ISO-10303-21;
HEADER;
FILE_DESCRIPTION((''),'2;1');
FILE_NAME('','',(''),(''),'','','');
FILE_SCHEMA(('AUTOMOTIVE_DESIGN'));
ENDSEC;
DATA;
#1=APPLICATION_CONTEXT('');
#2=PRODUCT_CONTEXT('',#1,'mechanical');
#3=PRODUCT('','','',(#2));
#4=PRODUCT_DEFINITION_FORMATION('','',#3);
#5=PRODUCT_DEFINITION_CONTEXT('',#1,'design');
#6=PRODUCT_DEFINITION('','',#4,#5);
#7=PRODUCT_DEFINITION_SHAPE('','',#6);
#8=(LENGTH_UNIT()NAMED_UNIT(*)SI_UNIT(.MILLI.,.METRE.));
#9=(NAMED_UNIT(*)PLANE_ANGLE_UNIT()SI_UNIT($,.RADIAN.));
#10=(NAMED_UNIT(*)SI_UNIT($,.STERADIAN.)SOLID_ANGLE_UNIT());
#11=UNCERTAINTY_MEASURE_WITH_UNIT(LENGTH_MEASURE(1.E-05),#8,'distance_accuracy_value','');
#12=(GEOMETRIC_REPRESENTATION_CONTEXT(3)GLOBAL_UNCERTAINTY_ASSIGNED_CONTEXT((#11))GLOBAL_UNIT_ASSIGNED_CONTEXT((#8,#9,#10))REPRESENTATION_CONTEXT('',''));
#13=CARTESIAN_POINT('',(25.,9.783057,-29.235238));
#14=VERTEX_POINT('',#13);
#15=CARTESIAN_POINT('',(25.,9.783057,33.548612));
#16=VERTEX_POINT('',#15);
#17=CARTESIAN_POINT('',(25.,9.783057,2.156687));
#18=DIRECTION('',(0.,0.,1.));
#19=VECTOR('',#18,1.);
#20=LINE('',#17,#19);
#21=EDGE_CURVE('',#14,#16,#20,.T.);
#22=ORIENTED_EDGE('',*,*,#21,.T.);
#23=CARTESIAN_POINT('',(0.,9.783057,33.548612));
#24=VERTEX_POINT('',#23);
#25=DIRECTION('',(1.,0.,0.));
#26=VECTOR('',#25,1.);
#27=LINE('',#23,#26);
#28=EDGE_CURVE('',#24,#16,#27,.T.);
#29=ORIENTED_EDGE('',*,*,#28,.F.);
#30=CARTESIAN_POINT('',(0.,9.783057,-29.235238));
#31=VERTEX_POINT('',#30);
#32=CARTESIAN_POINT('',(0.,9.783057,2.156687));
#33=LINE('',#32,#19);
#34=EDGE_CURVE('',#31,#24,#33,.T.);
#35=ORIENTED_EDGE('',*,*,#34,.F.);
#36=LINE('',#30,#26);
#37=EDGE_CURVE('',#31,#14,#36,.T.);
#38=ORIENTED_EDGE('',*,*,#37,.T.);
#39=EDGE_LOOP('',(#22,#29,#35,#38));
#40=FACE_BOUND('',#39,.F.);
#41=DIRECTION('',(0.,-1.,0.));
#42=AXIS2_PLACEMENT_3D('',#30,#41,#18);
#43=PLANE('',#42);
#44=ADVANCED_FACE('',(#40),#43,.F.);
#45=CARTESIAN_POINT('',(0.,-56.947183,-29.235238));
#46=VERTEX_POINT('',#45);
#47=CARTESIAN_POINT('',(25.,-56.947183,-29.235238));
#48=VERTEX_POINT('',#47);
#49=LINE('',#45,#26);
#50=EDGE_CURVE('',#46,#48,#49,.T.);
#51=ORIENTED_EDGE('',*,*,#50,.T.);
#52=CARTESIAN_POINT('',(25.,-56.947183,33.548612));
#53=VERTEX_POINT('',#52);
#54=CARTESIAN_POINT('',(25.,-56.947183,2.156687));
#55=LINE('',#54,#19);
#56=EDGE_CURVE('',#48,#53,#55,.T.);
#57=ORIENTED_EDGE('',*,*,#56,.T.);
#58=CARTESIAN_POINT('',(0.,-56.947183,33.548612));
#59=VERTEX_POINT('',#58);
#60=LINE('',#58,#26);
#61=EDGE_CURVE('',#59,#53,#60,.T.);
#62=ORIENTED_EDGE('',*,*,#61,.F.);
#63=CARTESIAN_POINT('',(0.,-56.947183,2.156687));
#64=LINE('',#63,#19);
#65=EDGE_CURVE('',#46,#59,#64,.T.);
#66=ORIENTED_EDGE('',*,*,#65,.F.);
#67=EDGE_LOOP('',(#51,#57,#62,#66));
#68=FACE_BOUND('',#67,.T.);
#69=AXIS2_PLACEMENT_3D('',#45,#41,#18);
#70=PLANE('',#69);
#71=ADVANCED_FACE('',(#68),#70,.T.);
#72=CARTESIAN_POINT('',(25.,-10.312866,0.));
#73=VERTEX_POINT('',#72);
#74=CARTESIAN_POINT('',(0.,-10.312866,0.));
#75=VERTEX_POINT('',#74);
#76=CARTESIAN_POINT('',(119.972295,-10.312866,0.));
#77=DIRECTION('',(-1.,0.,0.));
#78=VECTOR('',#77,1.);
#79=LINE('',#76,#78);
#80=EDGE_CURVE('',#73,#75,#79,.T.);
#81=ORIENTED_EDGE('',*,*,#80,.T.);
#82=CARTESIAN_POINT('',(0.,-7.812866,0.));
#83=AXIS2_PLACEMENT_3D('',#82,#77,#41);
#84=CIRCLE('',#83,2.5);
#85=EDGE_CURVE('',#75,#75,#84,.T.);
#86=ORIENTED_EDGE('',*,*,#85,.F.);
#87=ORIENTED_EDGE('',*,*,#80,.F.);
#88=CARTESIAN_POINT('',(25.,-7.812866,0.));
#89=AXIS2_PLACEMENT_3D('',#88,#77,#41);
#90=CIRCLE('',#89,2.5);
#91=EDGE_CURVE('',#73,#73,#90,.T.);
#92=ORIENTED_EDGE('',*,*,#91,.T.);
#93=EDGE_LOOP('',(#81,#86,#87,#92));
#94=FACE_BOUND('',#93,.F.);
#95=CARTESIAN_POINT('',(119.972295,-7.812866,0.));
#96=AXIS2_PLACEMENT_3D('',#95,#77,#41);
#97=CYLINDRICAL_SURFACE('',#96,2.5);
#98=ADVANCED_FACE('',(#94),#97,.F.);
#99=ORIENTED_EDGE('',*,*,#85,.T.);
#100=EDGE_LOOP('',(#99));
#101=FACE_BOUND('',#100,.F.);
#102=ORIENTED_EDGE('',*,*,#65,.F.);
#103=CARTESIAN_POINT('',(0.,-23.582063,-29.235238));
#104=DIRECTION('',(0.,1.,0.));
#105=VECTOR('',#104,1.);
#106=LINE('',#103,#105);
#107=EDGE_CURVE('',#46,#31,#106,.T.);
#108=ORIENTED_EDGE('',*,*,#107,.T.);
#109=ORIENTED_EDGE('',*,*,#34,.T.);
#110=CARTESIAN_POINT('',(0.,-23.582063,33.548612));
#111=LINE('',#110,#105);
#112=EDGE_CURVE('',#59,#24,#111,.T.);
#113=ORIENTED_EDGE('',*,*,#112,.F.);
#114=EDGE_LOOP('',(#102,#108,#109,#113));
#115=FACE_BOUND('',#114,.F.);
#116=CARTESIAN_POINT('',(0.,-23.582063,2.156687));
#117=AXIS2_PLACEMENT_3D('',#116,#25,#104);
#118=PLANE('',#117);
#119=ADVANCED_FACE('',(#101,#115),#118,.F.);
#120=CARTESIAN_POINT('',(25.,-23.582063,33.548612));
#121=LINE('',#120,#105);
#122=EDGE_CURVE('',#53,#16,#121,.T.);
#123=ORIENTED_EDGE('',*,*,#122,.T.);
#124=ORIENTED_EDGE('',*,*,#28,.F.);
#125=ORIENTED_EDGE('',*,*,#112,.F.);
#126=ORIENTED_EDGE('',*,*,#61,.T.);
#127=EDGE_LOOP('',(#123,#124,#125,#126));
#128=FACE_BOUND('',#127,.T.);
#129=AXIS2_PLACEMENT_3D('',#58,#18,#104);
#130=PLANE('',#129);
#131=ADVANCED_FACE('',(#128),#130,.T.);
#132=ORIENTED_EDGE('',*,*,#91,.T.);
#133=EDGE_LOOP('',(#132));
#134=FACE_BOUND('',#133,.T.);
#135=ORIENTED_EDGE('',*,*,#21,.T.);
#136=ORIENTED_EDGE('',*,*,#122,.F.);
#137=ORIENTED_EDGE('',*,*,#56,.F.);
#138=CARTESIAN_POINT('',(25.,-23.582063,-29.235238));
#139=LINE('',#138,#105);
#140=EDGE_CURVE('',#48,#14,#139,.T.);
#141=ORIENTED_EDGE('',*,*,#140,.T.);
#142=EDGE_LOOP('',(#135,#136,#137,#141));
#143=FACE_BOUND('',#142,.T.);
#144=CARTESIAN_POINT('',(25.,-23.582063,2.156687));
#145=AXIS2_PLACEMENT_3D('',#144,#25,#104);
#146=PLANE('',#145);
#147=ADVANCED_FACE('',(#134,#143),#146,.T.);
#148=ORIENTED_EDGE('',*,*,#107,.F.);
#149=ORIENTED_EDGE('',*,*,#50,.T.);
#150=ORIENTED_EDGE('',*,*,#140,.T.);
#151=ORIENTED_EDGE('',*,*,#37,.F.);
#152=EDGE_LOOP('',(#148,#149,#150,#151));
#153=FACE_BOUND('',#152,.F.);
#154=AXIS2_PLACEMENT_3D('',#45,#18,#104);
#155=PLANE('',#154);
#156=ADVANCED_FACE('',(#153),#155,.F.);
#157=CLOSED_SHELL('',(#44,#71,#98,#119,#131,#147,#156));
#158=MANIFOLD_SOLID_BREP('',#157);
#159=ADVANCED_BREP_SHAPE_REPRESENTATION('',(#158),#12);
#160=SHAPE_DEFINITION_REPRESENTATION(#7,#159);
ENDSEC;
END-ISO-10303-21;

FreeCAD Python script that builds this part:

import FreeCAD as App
import Part
import Sketcher
from FreeCAD import Vector
Q = App.Units.Quantity


def add_polygon(sketch, points):
    """Adds a closed chain of lines whose ends are joined by coincident constraints."""
    first, n = sketch.GeometryCount, len(points)
    for a, b in zip(points, points[1:] + points[:1]):
        sketch.addGeometry(Part.LineSegment(App.Vector(*a, 0), App.Vector(*b, 0)), False)
    for i in range(n):
        sketch.addConstraint(Sketcher.Constraint("Coincident", first + i, 2, first + (i + 1) % n, 1))

doc = App.newDocument("Part")
body = doc.addObject("PartDesign::Body", "Body")

# Sketch on YZ plane
sketch1 = body.newObject("Sketcher::SketchObject", "Sketch")
sketch1.AttachmentSupport = (doc.getObject("YZ_Plane"), [""])
sketch1.MapMode = "FlatFace"
add_polygon(sketch1, [(-57, 34), (-57, -29), (10, -29), (10, 34)])  # lines 0-3
sketch1.addConstraint([
    Sketcher.Constraint("Vertical", 0),
    Sketcher.Constraint("Horizontal", 1),
    Sketcher.Constraint("Vertical", 2),
    Sketcher.Constraint("Horizontal", 3),
    Sketcher.Constraint("DistanceX", 1, 1, 1, 2, Q("66.73024 mm")),
    Sketcher.Constraint("DistanceY", 0, 2, 0, 1, Q("62.78385 mm")),
    Sketcher.Constraint("DistanceX", 0, 2, -1, 1, Q("56.947183 mm")),
    Sketcher.Constraint("DistanceY", 0, 2, -1, 1, Q("29.235238 mm")),
])
pad1 = body.newObject("PartDesign::Pad", "Pad")
pad1.Profile = sketch1
pad1.Length = 25

# Sketch on YZ plane
sketch2 = body.newObject("Sketcher::SketchObject", "Sketch001")
sketch2.AttachmentSupport = (doc.getObject("YZ_Plane"), [""])
sketch2.MapMode = "FlatFace"
sketch2.AttachmentOffset = App.Placement(Vector(0, 0, 25), App.Rotation())
sketch2.addGeometry(Part.Circle(Vector(-28, 10, 0), Vector(0, 0, 1), 11), False)
sketch2.addConstraint([
    Sketcher.Constraint("Diameter", 0, Q("21.641524 mm")),
    Sketcher.Constraint("DistanceX", 0, 3, -1, 1, Q("27.518781 mm")),
    Sketcher.Constraint("DistanceY", -1, 1, 0, 3, Q("9.579325 mm")),
])
pad2 = body.newObject("PartDesign::Pad", "Pad001")
pad2.Profile = sketch2
pad2.Length = 25
pad2.Reversed = True

# Sketch on YZ plane
sketch3 = body.newObject("Sketcher::SketchObject", "Sketch002")
sketch3.AttachmentSupport = (doc.getObject("YZ_Plane"), [""])
sketch3.MapMode = "FlatFace"
sketch3.AttachmentOffset = App.Placement(Vector(0, 0, 25), App.Rotation())
sketch3.addGeometry(Part.Circle(Vector(-7.8, 0, 0), Vector(0, 0, 1), 2.5), False)
sketch3.addConstraint([
    Sketcher.Constraint("PointOnObject", 0, 3, -1),
    Sketcher.Constraint("Diameter", 0, Q("5 mm")),
    Sketcher.Constraint("DistanceX", 0, 3, -1, 1, Q("7.812866 mm")),
])
doc.recompute()
hole = body.newObject("PartDesign::Hole", "Hole")
hole.Profile = sketch3
hole.ThreadType = "None"
hole.Diameter = 5
hole.DepthType = "ThroughAll"

doc.recompute()
